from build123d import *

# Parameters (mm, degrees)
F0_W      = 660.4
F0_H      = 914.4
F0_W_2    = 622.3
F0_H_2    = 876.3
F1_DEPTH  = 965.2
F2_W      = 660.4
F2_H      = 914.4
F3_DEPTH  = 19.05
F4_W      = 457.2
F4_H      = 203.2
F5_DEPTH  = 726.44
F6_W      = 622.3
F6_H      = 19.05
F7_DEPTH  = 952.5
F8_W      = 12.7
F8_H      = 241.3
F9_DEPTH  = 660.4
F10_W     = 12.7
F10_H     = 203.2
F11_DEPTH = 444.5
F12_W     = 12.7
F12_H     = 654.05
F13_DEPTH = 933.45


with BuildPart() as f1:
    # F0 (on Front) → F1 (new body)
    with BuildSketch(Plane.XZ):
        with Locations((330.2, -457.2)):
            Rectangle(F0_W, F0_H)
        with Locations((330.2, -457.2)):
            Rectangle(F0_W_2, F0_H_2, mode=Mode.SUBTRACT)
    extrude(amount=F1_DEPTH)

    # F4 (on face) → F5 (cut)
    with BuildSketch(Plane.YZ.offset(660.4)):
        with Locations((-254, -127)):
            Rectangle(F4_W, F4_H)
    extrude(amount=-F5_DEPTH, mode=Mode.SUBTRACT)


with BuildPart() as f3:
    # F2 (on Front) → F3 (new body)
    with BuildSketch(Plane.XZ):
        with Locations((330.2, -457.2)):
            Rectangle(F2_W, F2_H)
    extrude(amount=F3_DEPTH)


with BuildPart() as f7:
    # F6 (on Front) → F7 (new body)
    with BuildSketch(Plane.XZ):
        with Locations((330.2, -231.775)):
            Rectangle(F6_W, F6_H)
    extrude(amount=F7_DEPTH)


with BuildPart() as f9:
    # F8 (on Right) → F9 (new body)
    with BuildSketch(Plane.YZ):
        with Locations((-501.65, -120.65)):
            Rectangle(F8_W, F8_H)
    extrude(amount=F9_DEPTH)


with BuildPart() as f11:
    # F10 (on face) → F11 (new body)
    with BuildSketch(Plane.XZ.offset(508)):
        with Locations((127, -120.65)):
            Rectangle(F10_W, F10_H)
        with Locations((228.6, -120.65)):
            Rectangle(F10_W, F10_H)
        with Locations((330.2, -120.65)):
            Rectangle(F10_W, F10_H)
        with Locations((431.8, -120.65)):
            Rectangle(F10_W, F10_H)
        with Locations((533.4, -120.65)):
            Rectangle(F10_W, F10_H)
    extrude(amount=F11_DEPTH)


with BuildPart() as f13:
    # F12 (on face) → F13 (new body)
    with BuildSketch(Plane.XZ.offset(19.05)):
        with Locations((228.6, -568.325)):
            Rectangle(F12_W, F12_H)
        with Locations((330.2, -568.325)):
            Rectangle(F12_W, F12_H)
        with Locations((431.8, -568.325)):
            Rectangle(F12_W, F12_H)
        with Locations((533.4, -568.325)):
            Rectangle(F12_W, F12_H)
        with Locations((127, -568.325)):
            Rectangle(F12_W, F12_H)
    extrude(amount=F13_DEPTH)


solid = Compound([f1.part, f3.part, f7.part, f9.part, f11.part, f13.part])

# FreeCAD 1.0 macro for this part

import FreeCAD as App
import Part
import Sketcher

V = App.Vector
Q = App.Units.Quantity

doc = App.newDocument("Part")
body = doc.addObject("PartDesign::Body", "Body")

# Sketch on XZ plane
sketch1 = body.newObject("Sketcher::SketchObject", "Sketch")
sketch1.AttachmentSupport = (doc.getObject("XZ_Plane"), [""])
sketch1.MapMode = "FlatFace"
sketch1.addGeometry(Part.LineSegment(V(0, 0, 0), V(0, -914, 0)), False)
sketch1.addGeometry(Part.LineSegment(V(0, -914, 0), V(660, -914, 0)), False)
sketch1.addGeometry(Part.LineSegment(V(660, -914, 0), V(660, 0, 0)), False)
sketch1.addGeometry(Part.LineSegment(V(660, 0, 0), V(0, 0, 0)), False)
sketch1.addGeometry(Part.LineSegment(V(641, -895, 0), V(19, -895, 0)), False)
sketch1.addGeometry(Part.LineSegment(V(19, -895, 0), V(19, -19, 0)), False)
sketch1.addGeometry(Part.LineSegment(V(19, -19, 0), V(641, -19, 0)), False)
sketch1.addGeometry(Part.LineSegment(V(641, -19, 0), V(641, -895, 0)), False)
sketch1.addConstraint(Sketcher.Constraint("Coincident", 0, 2, 1, 1))
sketch1.addConstraint(Sketcher.Constraint("Coincident", 1, 2, 2, 1))
sketch1.addConstraint(Sketcher.Constraint("Coincident", 2, 2, 3, 1))
sketch1.addConstraint(Sketcher.Constraint("Coincident", 3, 2, 0, 1))
sketch1.addConstraint(Sketcher.Constraint("Coincident", 4, 2, 5, 1))
sketch1.addConstraint(Sketcher.Constraint("Coincident", 5, 2, 6, 1))
sketch1.addConstraint(Sketcher.Constraint("Coincident", 6, 2, 7, 1))
sketch1.addConstraint(Sketcher.Constraint("Coincident", 7, 2, 4, 1))
sketch1.addConstraint(Sketcher.Constraint("Vertical", 0))
sketch1.addConstraint(Sketcher.Constraint("Horizontal", 1))
sketch1.addConstraint(Sketcher.Constraint("Vertical", 2))
sketch1.addConstraint(Sketcher.Constraint("Horizontal", 3))
sketch1.addConstraint(Sketcher.Constraint("Horizontal", 4))
sketch1.addConstraint(Sketcher.Constraint("Vertical", 5))
sketch1.addConstraint(Sketcher.Constraint("Horizontal", 6))
sketch1.addConstraint(Sketcher.Constraint("Vertical", 7))
sketch1.addConstraint(Sketcher.Constraint("Coincident", 3, 2, -1, 1))
sketch1.addConstraint(Sketcher.Constraint("DistanceX", 1, 1, 1, 2, Q("26 in")))
sketch1.addConstraint(Sketcher.Constraint("DistanceY", 0, 2, 0, 1, Q("36 in")))
sketch1.addConstraint(Sketcher.Constraint("DistanceX", 4, 2, 4, 1, Q("24.5 in")))
sketch1.addConstraint(Sketcher.Constraint("DistanceY", 5, 1, 5, 2, Q("34.5 in")))
sketch1.addConstraint(Sketcher.Constraint("DistanceX", -1, 1, 4, 2, Q("0.75 in")))
sketch1.addConstraint(Sketcher.Constraint("DistanceY", 4, 2, -1, 1, Q("35.25 in")))
pad1 = body.newObject("PartDesign::Pad", "Pad")
pad1.Profile = sketch1
pad1.Length = Q("38 in")

# Sketch on YZ plane
sketch2 = body.newObject("Sketcher::SketchObject", "Sketch001")
sketch2.AttachmentSupport = (doc.getObject("YZ_Plane"), [""])
sketch2.MapMode = "FlatFace"
sketch2.AttachmentOffset = App.Placement(V(0, 0, 26 * 25.4), App.Rotation())
sketch2.addGeometry(Part.LineSegment(V(-483, -25, 0), V(-483, -229, 0)), False)
sketch2.addGeometry(Part.LineSegment(V(-483, -229, 0), V(-25, -229, 0)), False)
sketch2.addGeometry(Part.LineSegment(V(-25, -229, 0), V(-25, -25, 0)), False)
sketch2.addGeometry(Part.LineSegment(V(-25, -25, 0), V(-483, -25, 0)), False)
sketch2.addConstraint(Sketcher.Constraint("Coincident", 0, 2, 1, 1))
sketch2.addConstraint(Sketcher.Constraint("Coincident", 1, 2, 2, 1))
sketch2.addConstraint(Sketcher.Constraint("Coincident", 2, 2, 3, 1))
sketch2.addConstraint(Sketcher.Constraint("Coincident", 3, 2, 0, 1))
sketch2.addConstraint(Sketcher.Constraint("Vertical", 0))
sketch2.addConstraint(Sketcher.Constraint("Horizontal", 1))
sketch2.addConstraint(Sketcher.Constraint("Vertical", 2))
sketch2.addConstraint(Sketcher.Constraint("Horizontal", 3))
sketch2.addConstraint(Sketcher.Constraint("DistanceX", 1, 1, 1, 2, Q("18 in")))
sketch2.addConstraint(Sketcher.Constraint("DistanceY", 0, 2, 0, 1, Q("8 in")))
sketch2.addConstraint(Sketcher.Constraint("DistanceX", 0, 2, -1, 1, Q("19 in")))
sketch2.addConstraint(Sketcher.Constraint("DistanceY", 0, 2, -1, 1, Q("9 in")))
pocket1 = body.newObject("PartDesign::Pocket", "Pocket")
pocket1.Profile = sketch2
pocket1.Length = Q("28.6 in")
body2 = doc.addObject("PartDesign::Body", "Body001")

# Sketch on XZ plane
sketch3 = body2.newObject("Sketcher::SketchObject", "Sketch002")
sketch3.AttachmentSupport = (doc.getObject("XZ_Plane001"), [""])
sketch3.MapMode = "FlatFace"
sketch3.addGeometry(Part.LineSegment(V(0, 0, 0), V(0, -914, 0)), False)
sketch3.addGeometry(Part.LineSegment(V(0, -914, 0), V(660, -914, 0)), False)
sketch3.addGeometry(Part.LineSegment(V(660, -914, 0), V(660, 0, 0)), False)
sketch3.addGeometry(Part.LineSegment(V(660, 0, 0), V(0, 0, 0)), False)
sketch3.addConstraint(Sketcher.Constraint("Coincident", 0, 2, 1, 1))
sketch3.addConstraint(Sketcher.Constraint("Coincident", 1, 2, 2, 1))
sketch3.addConstraint(Sketcher.Constraint("Coincident", 2, 2, 3, 1))
sketch3.addConstraint(Sketcher.Constraint("Coincident", 3, 2, 0, 1))
sketch3.addConstraint(Sketcher.Constraint("Vertical", 0))
sketch3.addConstraint(Sketcher.Constraint("Horizontal", 1))
sketch3.addConstraint(Sketcher.Constraint("Vertical", 2))
sketch3.addConstraint(Sketcher.Constraint("Horizontal", 3))
sketch3.addConstraint(Sketcher.Constraint("Coincident", 3, 2, -1, 1))
sketch3.addConstraint(Sketcher.Constraint("DistanceX", 1, 1, 1, 2, Q("26 in")))
sketch3.addConstraint(Sketcher.Constraint("DistanceY", 0, 2, 0, 1, Q("36 in")))
pad2 = body2.newObject("PartDesign::Pad", "Pad001")
pad2.Profile = sketch3
pad2.Length = Q("0.75 in")
body3 = doc.addObject("PartDesign::Body", "Body002")

# Sketch on XZ plane
sketch4 = body3.newObject("Sketcher::SketchObject", "Sketch003")
sketch4.AttachmentSupport = (doc.getObject("XZ_Plane002"), [""])
sketch4.MapMode = "FlatFace"
sketch4.addGeometry(Part.LineSegment(V(19, -222, 0), V(19, -241, 0)), False)
sketch4.addGeometry(Part.LineSegment(V(19, -241, 0), V(641, -241, 0)), False)
sketch4.addGeometry(Part.LineSegment(V(641, -241, 0), V(641, -222, 0)), False)
sketch4.addGeometry(Part.LineSegment(V(641, -222, 0), V(19, -222, 0)), False)
sketch4.addConstraint(Sketcher.Constraint("Coincident", 0, 2, 1, 1))
sketch4.addConstraint(Sketcher.Constraint("Coincident", 1, 2, 2, 1))
sketch4.addConstraint(Sketcher.Constraint("Coincident", 2, 2, 3, 1))
sketch4.addConstraint(Sketcher.Constraint("Coincident", 3, 2, 0, 1))
sketch4.addConstraint(Sketcher.Constraint("Vertical", 0))
sketch4.addConstraint(Sketcher.Constraint("Horizontal", 1))
sketch4.addConstraint(Sketcher.Constraint("Vertical", 2))
sketch4.addConstraint(Sketcher.Constraint("Horizontal", 3))
sketch4.addConstraint(Sketcher.Constraint("DistanceX", 1, 1, 1, 2, Q("24.5 in")))
sketch4.addConstraint(Sketcher.Constraint("DistanceY", 0, 2, 0, 1, Q("0.75 in")))
sketch4.addConstraint(Sketcher.Constraint("DistanceY", 0, 2, -1, 1, Q("9.5 in")))
sketch4.addConstraint(Sketcher.Constraint("DistanceX", -1, 1, 0, 2, Q("0.75 in")))
pad3 = body3.newObject("PartDesign::Pad", "Pad002")
pad3.Profile = sketch4
pad3.Length = Q("37.5 in")
body4 = doc.addObject("PartDesign::Body", "Body003")

# Sketch on YZ plane
sketch5 = body4.newObject("Sketcher::SketchObject", "Sketch004")
sketch5.AttachmentSupport = (doc.getObject("YZ_Plane003"), [""])
sketch5.MapMode = "FlatFace"
sketch5.addGeometry(Part.LineSegment(V(-508, 0, 0), V(-508, -241, 0)), False)
sketch5.addGeometry(Part.LineSegment(V(-508, -241, 0), V(-495, -241, 0)), False)
sketch5.addGeometry(Part.LineSegment(V(-495, -241, 0), V(-495, 0, 0)), False)
sketch5.addGeometry(Part.LineSegment(V(-495, 0, 0), V(-508, 0, 0)), False)
sketch5.addConstraint(Sketcher.Constraint("Coincident", 0, 2, 1, 1))
sketch5.addConstraint(Sketcher.Constraint("Coincident", 1, 2, 2, 1))
sketch5.addConstraint(Sketcher.Constraint("Coincident", 2, 2, 3, 1))
sketch5.addConstraint(Sketcher.Constraint("Coincident", 3, 2, 0, 1))
sketch5.addConstraint(Sketcher.Constraint("Vertical", 0))
sketch5.addConstraint(Sketcher.Constraint("Horizontal", 1))
sketch5.addConstraint(Sketcher.Constraint("Vertical", 2))
sketch5.addConstraint(Sketcher.Constraint("Horizontal", 3))
sketch5.addConstraint(Sketcher.Constraint("PointOnObject", 2, 2, -1))
sketch5.addConstraint(Sketcher.Constraint("DistanceX", 1, 1, 1, 2, Q("0.5 in")))
sketch5.addConstraint(Sketcher.Constraint("DistanceY", 0, 2, 0, 1, Q("9.5 in")))
sketch5.addConstraint(Sketcher.Constraint("DistanceX", 0, 2, -1, 1, Q("20 in")))
pad4 = body4.newObject("PartDesign::Pad", "Pad003")
pad4.Profile = sketch5
pad4.Length = Q("26 in")
body5 = doc.addObject("PartDesign::Body", "Body004")
body5.AllowCompound = True

# Sketch on XZ plane
sketch6 = body5.newObject("Sketcher::SketchObject", "Sketch005")
sketch6.AttachmentSupport = (doc.getObject("XZ_Plane004"), [""])
sketch6.MapMode = "FlatFace"
sketch6.AttachmentOffset = App.Placement(V(0, 0, 20 * 25.4), App.Rotation())
sketch6.addGeometry(Part.LineSegment(V(121, -19, 0), V(121, -222, 0)), False)
sketch6.addGeometry(Part.LineSegment(V(121, -222, 0), V(133, -222, 0)), False)
sketch6.addGeometry(Part.LineSegment(V(133, -222, 0), V(133, -19, 0)), False)
sketch6.addGeometry(Part.LineSegment(V(133, -19, 0), V(121, -19, 0)), False)
sketch6.addGeometry(Part.LineSegment(V(222, -19, 0), V(222, -222, 0)), False)
sketch6.addGeometry(Part.LineSegment(V(222, -222, 0), V(235, -222, 0)), False)
sketch6.addGeometry(Part.LineSegment(V(235, -222, 0), V(235, -19, 0)), False)
sketch6.addGeometry(Part.LineSegment(V(235, -19, 0), V(222, -19, 0)), False)
sketch6.addGeometry(Part.LineSegment(V(324, -19, 0), V(324, -222, 0)), False)
sketch6.addGeometry(Part.LineSegment(V(324, -222, 0), V(337, -222, 0)), False)
sketch6.addGeometry(Part.LineSegment(V(337, -222, 0), V(337, -19, 0)), False)
sketch6.addGeometry(Part.LineSegment(V(337, -19, 0), V(324, -19, 0)), False)
sketch6.addGeometry(Part.LineSegment(V(425, -19, 0), V(425, -222, 0)), False)
sketch6.addGeometry(Part.LineSegment(V(425, -222, 0), V(438, -222, 0)), False)
sketch6.addGeometry(Part.LineSegment(V(438, -222, 0), V(438, -19, 0)), False)
sketch6.addGeometry(Part.LineSegment(V(438, -19, 0), V(425, -19, 0)), False)
sketch6.addGeometry(Part.LineSegment(V(527, -19, 0), V(527, -222, 0)), False)
sketch6.addGeometry(Part.LineSegment(V(527, -222, 0), V(540, -222, 0)), False)
sketch6.addGeometry(Part.LineSegment(V(540, -222, 0), V(540, -19, 0)), False)
sketch6.addGeometry(Part.LineSegment(V(540, -19, 0), V(527, -19, 0)), False)
sketch6.addConstraint(Sketcher.Constraint("Coincident", 0, 2, 1, 1))
sketch6.addConstraint(Sketcher.Constraint("Coincident", 1, 2, 2, 1))
sketch6.addConstraint(Sketcher.Constraint("Coincident", 2, 2, 3, 1))
sketch6.addConstraint(Sketcher.Constraint("Coincident", 3, 2, 0, 1))
sketch6.addConstraint(Sketcher.Constraint("Coincident", 4, 2, 5, 1))
sketch6.addConstraint(Sketcher.Constraint("Coincident", 5, 2, 6, 1))
sketch6.addConstraint(Sketcher.Constraint("Coincident", 6, 2, 7, 1))
sketch6.addConstraint(Sketcher.Constraint("Coincident", 7, 2, 4, 1))
sketch6.addConstraint(Sketcher.Constraint("Coincident", 8, 2, 9, 1))
sketch6.addConstraint(Sketcher.Constraint("Coincident", 9, 2, 10, 1))
sketch6.addConstraint(Sketcher.Constraint("Coincident", 10, 2, 11, 1))
sketch6.addConstraint(Sketcher.Constraint("Coincident", 11, 2, 8, 1))
sketch6.addConstraint(Sketcher.Constraint("Coincident", 12, 2, 13, 1))
sketch6.addConstraint(Sketcher.Constraint("Coincident", 13, 2, 14, 1))
sketch6.addConstraint(Sketcher.Constraint("Coincident", 14, 2, 15, 1))
sketch6.addConstraint(Sketcher.Constraint("Coincident", 15, 2, 12, 1))
sketch6.addConstraint(Sketcher.Constraint("Coincident", 16, 2, 17, 1))
sketch6.addConstraint(Sketcher.Constraint("Coincident", 17, 2, 18, 1))
sketch6.addConstraint(Sketcher.Constraint("Coincident", 18, 2, 19, 1))
sketch6.addConstraint(Sketcher.Constraint("Coincident", 19, 2, 16, 1))
sketch6.addConstraint(Sketcher.Constraint("Vertical", 0))
sketch6.addConstraint(Sketcher.Constraint("Horizontal", 1))
sketch6.addConstraint(Sketcher.Constraint("Vertical", 2))
sketch6.addConstraint(Sketcher.Constraint("Horizontal", 3))
sketch6.addConstraint(Sketcher.Constraint("Vertical", 4))
sketch6.addConstraint(Sketcher.Constraint("Horizontal", 5))
sketch6.addConstraint(Sketcher.Constraint("Vertical", 6))
sketch6.addConstraint(Sketcher.Constraint("Horizontal", 7))
sketch6.addConstraint(Sketcher.Constraint("Vertical", 8))
sketch6.addConstraint(Sketcher.Constraint("Horizontal", 9))
sketch6.addConstraint(Sketcher.Constraint("Vertical", 10))
sketch6.addConstraint(Sketcher.Constraint("Horizontal", 11))
sketch6.addConstraint(Sketcher.Constraint("Vertical", 12))
sketch6.addConstraint(Sketcher.Constraint("Horizontal", 13))
sketch6.addConstraint(Sketcher.Constraint("Vertical", 14))
sketch6.addConstraint(Sketcher.Constraint("Horizontal", 15))
sketch6.addConstraint(Sketcher.Constraint("Vertical", 16))
sketch6.addConstraint(Sketcher.Constraint("Horizontal", 17))
sketch6.addConstraint(Sketcher.Constraint("Vertical", 18))
sketch6.addConstraint(Sketcher.Constraint("Horizontal", 19))
sketch6.addConstraint(Sketcher.Constraint("Horizontal", 1, 2, 4, 2))
sketch6.addConstraint(Sketcher.Constraint("Horizontal", 3, 2, 6, 2))
sketch6.addConstraint(Sketcher.Constraint("Horizontal", 5, 2, 8, 2))
sketch6.addConstraint(Sketcher.Constraint("Horizontal", 7, 2, 10, 2))
sketch6.addConstraint(Sketcher.Constraint("Horizontal", 9, 2, 12, 2))
sketch6.addConstraint(Sketcher.Constraint("Horizontal", 11, 2, 14, 2))
sketch6.addConstraint(Sketcher.Constraint("Horizontal", 13, 2, 16, 2))
sketch6.addConstraint(Sketcher.Constraint("Horizontal", 15, 2, 18, 2))
sketch6.addConstraint(Sketcher.Constraint("Equal", 3, 5))
sketch6.addConstraint(Sketcher.Constraint("Equal", 7, 9))
sketch6.addConstraint(Sketcher.Constraint("Equal", 11, 13))
sketch6.addConstraint(Sketcher.Constraint("Equal", 15, 17))
sketch6.addConstraint(Sketcher.Constraint("DistanceY", 0, 2, 0, 1, Q("8 in")))
sketch6.addConstraint(Sketcher.Constraint("DistanceX", 1, 1, 1, 2, Q("0.5 in")))
sketch6.addConstraint(Sketcher.Constraint("DistanceX", 0, 2, 4, 2, Q("4 in")))
sketch6.addConstraint(Sketcher.Constraint("DistanceX", 4, 2, 8, 2, Q("4 in")))
sketch6.addConstraint(Sketcher.Constraint("DistanceX", 8, 2, 12, 2, Q("4 in")))
sketch6.addConstraint(Sketcher.Constraint("DistanceX", 12, 2, 16, 2, Q("4 in")))
sketch6.addConstraint(Sketcher.Constraint("DistanceX", -1, 1, 0, 2, Q("4.75 in")))
sketch6.addConstraint(Sketcher.Constraint("DistanceY", 0, 2, -1, 1, Q("8.75 in")))
pad5 = body5.newObject("PartDesign::Pad", "Pad004")
pad5.Profile = sketch6
pad5.Length = Q("17.5 in")
body6 = doc.addObject("PartDesign::Body", "Body005")
body6.AllowCompound = True

# Sketch on XZ plane
sketch7 = body6.newObject("Sketcher::SketchObject", "Sketch006")
sketch7.AttachmentSupport = (doc.getObject("XZ_Plane005"), [""])
sketch7.MapMode = "FlatFace"
sketch7.AttachmentOffset = App.Placement(V(0, 0, 0.75 * 25.4), App.Rotation())
sketch7.addGeometry(Part.LineSegment(V(222, -241, 0), V(222, -895, 0)), False)
sketch7.addGeometry(Part.LineSegment(V(222, -895, 0), V(235, -895, 0)), False)
sketch7.addGeometry(Part.LineSegment(V(235, -895, 0), V(235, -241, 0)), False)
sketch7.addGeometry(Part.LineSegment(V(235, -241, 0), V(222, -241, 0)), False)
sketch7.addGeometry(Part.LineSegment(V(324, -241, 0), V(324, -895, 0)), False)
sketch7.addGeometry(Part.LineSegment(V(324, -895, 0), V(337, -895, 0)), False)
sketch7.addGeometry(Part.LineSegment(V(337, -895, 0), V(337, -241, 0)), False)
sketch7.addGeometry(Part.LineSegment(V(337, -241, 0), V(324, -241, 0)), False)
sketch7.addGeometry(Part.LineSegment(V(425, -241, 0), V(425, -895, 0)), False)
sketch7.addGeometry(Part.LineSegment(V(425, -895, 0), V(438, -895, 0)), False)
sketch7.addGeometry(Part.LineSegment(V(438, -895, 0), V(438, -241, 0)), False)
sketch7.addGeometry(Part.LineSegment(V(438, -241, 0), V(425, -241, 0)), False)
sketch7.addGeometry(Part.LineSegment(V(527, -241, 0), V(527, -895, 0)), False)
sketch7.addGeometry(Part.LineSegment(V(527, -895, 0), V(540, -895, 0)), False)
sketch7.addGeometry(Part.LineSegment(V(540, -895, 0), V(540, -241, 0)), False)
sketch7.addGeometry(Part.LineSegment(V(540, -241, 0), V(527, -241, 0)), False)
sketch7.addGeometry(Part.LineSegment(V(121, -241, 0), V(121, -895, 0)), False)
sketch7.addGeometry(Part.LineSegment(V(121, -895, 0), V(133, -895, 0)), False)
sketch7.addGeometry(Part.LineSegment(V(133, -895, 0), V(133, -241, 0)), False)
sketch7.addGeometry(Part.LineSegment(V(133, -241, 0), V(121, -241, 0)), False)
sketch7.addConstraint(Sketcher.Constraint("Coincident", 0, 2, 1, 1))
sketch7.addConstraint(Sketcher.Constraint("Coincident", 1, 2, 2, 1))
sketch7.addConstraint(Sketcher.Constraint("Coincident", 2, 2, 3, 1))
sketch7.addConstraint(Sketcher.Constraint("Coincident", 3, 2, 0, 1))
sketch7.addConstraint(Sketcher.Constraint("Coincident", 4, 2, 5, 1))
sketch7.addConstraint(Sketcher.Constraint("Coincident", 5, 2, 6, 1))
sketch7.addConstraint(Sketcher.Constraint("Coincident", 6, 2, 7, 1))
sketch7.addConstraint(Sketcher.Constraint("Coincident", 7, 2, 4, 1))
sketch7.addConstraint(Sketcher.Constraint("Coincident", 8, 2, 9, 1))
sketch7.addConstraint(Sketcher.Constraint("Coincident", 9, 2, 10, 1))
sketch7.addConstraint(Sketcher.Constraint("Coincident", 10, 2, 11, 1))
sketch7.addConstraint(Sketcher.Constraint("Coincident", 11, 2, 8, 1))
sketch7.addConstraint(Sketcher.Constraint("Coincident", 12, 2, 13, 1))
sketch7.addConstraint(Sketcher.Constraint("Coincident", 13, 2, 14, 1))
sketch7.addConstraint(Sketcher.Constraint("Coincident", 14, 2, 15, 1))
sketch7.addConstraint(Sketcher.Constraint("Coincident", 15, 2, 12, 1))
sketch7.addConstraint(Sketcher.Constraint("Coincident", 16, 2, 17, 1))
sketch7.addConstraint(Sketcher.Constraint("Coincident", 17, 2, 18, 1))
sketch7.addConstraint(Sketcher.Constraint("Coincident", 18, 2, 19, 1))
sketch7.addConstraint(Sketcher.Constraint("Coincident", 19, 2, 16, 1))
sketch7.addConstraint(Sketcher.Constraint("Vertical", 0))
sketch7.addConstraint(Sketcher.Constraint("Horizontal", 1))
sketch7.addConstraint(Sketcher.Constraint("Vertical", 2))
sketch7.addConstraint(Sketcher.Constraint("Horizontal", 3))
sketch7.addConstraint(Sketcher.Constraint("Vertical", 4))
sketch7.addConstraint(Sketcher.Constraint("Horizontal", 5))
sketch7.addConstraint(Sketcher.Constraint("Vertical", 6))
sketch7.addConstraint(Sketcher.Constraint("Horizontal", 7))
sketch7.addConstraint(Sketcher.Constraint("Vertical", 8))
sketch7.addConstraint(Sketcher.Constraint("Horizontal", 9))
sketch7.addConstraint(Sketcher.Constraint("Vertical", 10))
sketch7.addConstraint(Sketcher.Constraint("Horizontal", 11))
sketch7.addConstraint(Sketcher.Constraint("Vertical", 12))
sketch7.addConstraint(Sketcher.Constraint("Horizontal", 13))
sketch7.addConstraint(Sketcher.Constraint("Vertical", 14))
sketch7.addConstraint(Sketcher.Constraint("Horizontal", 15))
sketch7.addConstraint(Sketcher.Constraint("Vertical", 16))
sketch7.addConstraint(Sketcher.Constraint("Horizontal", 17))
sketch7.addConstraint(Sketcher.Constraint("Vertical", 18))
sketch7.addConstraint(Sketcher.Constraint("Horizontal", 19))
sketch7.addConstraint(Sketcher.Constraint("Horizontal", 1, 2, 4, 2))
sketch7.addConstraint(Sketcher.Constraint("Horizontal", 3, 2, 6, 2))
sketch7.addConstraint(Sketcher.Constraint("Horizontal", 5, 2, 8, 2))
sketch7.addConstraint(Sketcher.Constraint("Horizontal", 7, 2, 10, 2))
sketch7.addConstraint(Sketcher.Constraint("Horizontal", 9, 2, 12, 2))
sketch7.addConstraint(Sketcher.Constraint("Horizontal", 11, 2, 14, 2))
sketch7.addConstraint(Sketcher.Constraint("Horizontal", 13, 2, 16, 2))
sketch7.addConstraint(Sketcher.Constraint("Horizontal", 15, 2, 18, 2))
sketch7.addConstraint(Sketcher.Constraint("Equal", 3, 5))
sketch7.addConstraint(Sketcher.Constraint("Equal", 7, 9))
sketch7.addConstraint(Sketcher.Constraint("Equal", 11, 13))
sketch7.addConstraint(Sketcher.Constraint("Equal", 15, 17))
sketch7.addConstraint(Sketcher.Constraint("DistanceX", 1, 1, 1, 2, Q("0.5 in")))
sketch7.addConstraint(Sketcher.Constraint("DistanceX", 0, 2, 4, 2, Q("4 in")))
sketch7.addConstraint(Sketcher.Constraint("DistanceX", 4, 2, 8, 2, Q("4 in")))
sketch7.addConstraint(Sketcher.Constraint("DistanceX", 8, 2, 12, 2, Q("4 in")))
sketch7.addConstraint(Sketcher.Constraint("DistanceX", 16, 2, 0, 2, Q("4 in")))
sketch7.addConstraint(Sketcher.Constraint("DistanceY", 0, 2, 0, 1, Q("25.75 in")))
sketch7.addConstraint(Sketcher.Constraint("DistanceY", 2, 2, -1, 1, Q("9.5 in")))
sketch7.addConstraint(Sketcher.Constraint("DistanceX", -1, 1, 0, 2, Q("8.75 in")))
pad6 = body6.newObject("PartDesign::Pad", "Pad005")
pad6.Profile = sketch7
pad6.Length = Q("36.75 in")

doc.recompute()
